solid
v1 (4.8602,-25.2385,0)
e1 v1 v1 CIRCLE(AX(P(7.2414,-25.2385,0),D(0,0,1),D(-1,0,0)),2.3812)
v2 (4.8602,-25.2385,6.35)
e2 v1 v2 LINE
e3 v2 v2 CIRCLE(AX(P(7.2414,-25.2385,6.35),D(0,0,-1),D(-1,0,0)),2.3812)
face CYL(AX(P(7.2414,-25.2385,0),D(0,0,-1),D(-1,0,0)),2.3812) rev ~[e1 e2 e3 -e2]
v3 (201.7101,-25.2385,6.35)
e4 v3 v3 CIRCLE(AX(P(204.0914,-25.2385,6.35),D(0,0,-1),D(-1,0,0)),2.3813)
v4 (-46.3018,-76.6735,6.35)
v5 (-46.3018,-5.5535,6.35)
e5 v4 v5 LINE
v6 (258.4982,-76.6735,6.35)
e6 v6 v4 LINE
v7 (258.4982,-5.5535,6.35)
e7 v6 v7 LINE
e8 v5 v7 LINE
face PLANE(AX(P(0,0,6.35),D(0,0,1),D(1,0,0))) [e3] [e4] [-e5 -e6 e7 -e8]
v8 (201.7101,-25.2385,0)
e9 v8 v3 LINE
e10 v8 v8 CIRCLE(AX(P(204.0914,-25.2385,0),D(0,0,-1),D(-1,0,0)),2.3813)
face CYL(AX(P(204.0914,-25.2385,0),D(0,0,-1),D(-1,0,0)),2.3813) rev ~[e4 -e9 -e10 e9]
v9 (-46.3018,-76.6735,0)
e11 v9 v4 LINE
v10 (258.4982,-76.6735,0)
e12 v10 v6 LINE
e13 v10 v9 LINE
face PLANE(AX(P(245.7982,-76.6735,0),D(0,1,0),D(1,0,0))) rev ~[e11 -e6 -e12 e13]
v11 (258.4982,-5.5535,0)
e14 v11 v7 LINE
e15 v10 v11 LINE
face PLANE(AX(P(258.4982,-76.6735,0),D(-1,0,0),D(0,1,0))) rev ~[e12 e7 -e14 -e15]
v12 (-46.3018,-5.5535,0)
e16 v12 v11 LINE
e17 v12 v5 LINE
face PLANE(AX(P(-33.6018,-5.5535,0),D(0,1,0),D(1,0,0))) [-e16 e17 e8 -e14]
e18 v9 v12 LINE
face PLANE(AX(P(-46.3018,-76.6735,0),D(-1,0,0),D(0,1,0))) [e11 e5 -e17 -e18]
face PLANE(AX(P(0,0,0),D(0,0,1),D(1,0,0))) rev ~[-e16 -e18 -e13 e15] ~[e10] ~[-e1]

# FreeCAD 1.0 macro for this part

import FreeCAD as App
import Part
import Sketcher
from FreeCAD import Vector
Q = App.Units.Quantity


def add_polygon(sketch, points):
    """Adds a closed chain of lines whose ends are joined by coincident constraints."""
    first, n = sketch.GeometryCount, len(points)
    for a, b in zip(points, points[1:] + points[:1]):
        sketch.addGeometry(Part.LineSegment(App.Vector(*a, 0), App.Vector(*b, 0)), False)
    for i in range(n):
        sketch.addConstraint(Sketcher.Constraint("Coincident", first + i, 2, first + (i + 1) % n, 1))

doc = App.newDocument("Part")
body = doc.addObject("PartDesign::Body", "Body")

sketch1 = doc.addObject("Sketcher::SketchObject", "Sketch")
body.addObject(sketch1)
sketch1.AttachmentSupport = (doc.XY_Plane, [""])
sketch1.MapMode = "FlatFace"
add_polygon(sketch1, [(252, 10), (-40, 10), (-40, -92), (252, -92)])
sketch1.addConstraint([
    Sketcher.Constraint("Horizontal", 0),
    Sketcher.Constraint("Vertical", 1),
    Sketcher.Constraint("Horizontal", 2),
    Sketcher.Constraint("Vertical", 3),
    Sketcher.Constraint("DistanceY", 1, 2, 1, 1, Q("4 in")),
    Sketcher.Constraint("DistanceX", 0, 2, 0, 1, Q("11.5 in")),
    Sketcher.Constraint("DistanceX", 0, 2, -1, 1, Q("1.5729 in")),
    Sketcher.Constraint("DistanceY", -1, 1, 0, 2, 9.6865),
])
pad1 = doc.addObject("PartDesign::Pad", "Pad")
body.addObject(pad1)
pad1.Profile = sketch1
pad1.Length = Q("0.25 in")

sketch2 = doc.addObject("Sketcher::SketchObject", "Sketch001")
body.addObject(sketch2)
sketch2.AttachmentSupport = (doc.XY_Plane, [""])
sketch2.MapMode = "FlatFace"
add_polygon(sketch2, [(-34, -92), (-40, -92), (-40, -77), (-34, -77)])
add_polygon(sketch2, [(246, 10), (252, 10), (252, -6), (246, -6)])
add_polygon(sketch2, [(252, -77), (252, -92), (246, -92), (246, -77)])
add_polygon(sketch2, [(-40, -6), (-40, 10), (-34, 10), (-34, -6)])
sketch2.addConstraint([
    Sketcher.Constraint("Horizontal", 0),
    Sketcher.Constraint("Vertical", 1),
    Sketcher.Constraint("Horizontal", 2),
    Sketcher.Constraint("Vertical", 3),
    Sketcher.Constraint("Horizontal", 4),
    Sketcher.Constraint("Vertical", 5),
    Sketcher.Constraint("Horizontal", 6),
    Sketcher.Constraint("Vertical", 7),
    Sketcher.Constraint("Vertical", 8),
    Sketcher.Constraint("Horizontal", 9),
    Sketcher.Constraint("Vertical", 10),
    Sketcher.Constraint("Horizontal", 11),
    Sketcher.Constraint("Vertical", 12),
    Sketcher.Constraint("Horizontal", 13),
    Sketcher.Constraint("Vertical", 14),
    Sketcher.Constraint("Horizontal", 15),
    Sketcher.Constraint("Horizontal", 3, 2, 8, 2),
    Sketcher.Constraint("Horizontal", 2, 2, 10, 2),
    Sketcher.Constraint("Horizontal", 7, 2, 12, 2),
    Sketcher.Constraint("Horizontal", 6, 2, 14, 2),
    Sketcher.Constraint("Vertical", 5, 2, 8, 2),
    Sketcher.Constraint("Vertical", 7, 2, 9, 2),
    Sketcher.Constraint("Vertical", 1, 2, 12, 2),
    Sketcher.Constraint("Vertical", 3, 2, 13, 2),
    Sketcher.Constraint("Equal", 2, 4),
    Sketcher.Constraint("Equal", 3, 5),
    Sketcher.Constraint("DistanceY", 1, 1, 1, 2, Q("0.6 in")),
    Sketcher.Constraint("DistanceX", 0, 2, 0, 1, Q("0.25 in")),
    Sketcher.Constraint("DistanceY", 3, 2, 4, 2, Q("4 in")),
    Sketcher.Constraint("DistanceX", 2, 2, 6, 2, Q("11 in")),
    Sketcher.Constraint("DistanceX", 0, 2, -1, 1, Q("1.5729 in")),
    Sketcher.Constraint("DistanceY", 0, 2, -1, 1, 91.9135),
])
pocket1 = doc.addObject("PartDesign::Pocket", "Pocket")
body.addObject(pocket1)
pocket1.Profile = sketch2
pocket1.Length = Q("1 in")
pocket1.Reversed = True

sketch3 = doc.addObject("Sketcher::SketchObject", "Sketch002")
body.addObject(sketch3)
sketch3.AttachmentSupport = (doc.XY_Plane, [""])
sketch3.MapMode = "FlatFace"
add_polygon(sketch3, [(258, -77), (252, -77), (252, -6), (258, -6)])
add_polygon(sketch3, [(-40, -6), (-40, -77), (-46, -77), (-46, -6)])
sketch3.addConstraint([
    Sketcher.Constraint("Horizontal", 0),
    Sketcher.Constraint("Vertical", 1),
    Sketcher.Constraint("Horizontal", 2),
    Sketcher.Constraint("Vertical", 3),
    Sketcher.Constraint("Vertical", 4),
    Sketcher.Constraint("Horizontal", 5),
    Sketcher.Constraint("Vertical", 6),
    Sketcher.Constraint("Horizontal", 7),
    Sketcher.Constraint("Horizontal", 3, 2, 4, 2),
    Sketcher.Constraint("Horizontal", 2, 2, 6, 2),
    Sketcher.Constraint("Equal", 2, 5),
    Sketcher.Constraint("DistanceX", 0, 2, 0, 1, Q("0.25 in")),
    Sketcher.Constraint("DistanceY", 1, 1, 1, 2, Q("2.8 in")),
    Sketcher.Constraint("DistanceX", 5, 2, 3, 2, Q("12 in")),
    Sketcher.Constraint("DistanceX", -1, 1, 0, 2, Q("9.9271 in")),
    Sketcher.Constraint("DistanceY", 0, 2, -1, 1, 76.6735),
])
pad2 = doc.addObject("PartDesign::Pad", "Pad001")
body.addObject(pad2)
pad2.Profile = sketch3
pad2.Length = Q("0.25 in")

sketch4 = doc.addObject("Sketcher::SketchObject", "Sketch003")
body.addObject(sketch4)
sketch4.AttachmentSupport = (doc.XY_Plane, [""])
sketch4.MapMode = "FlatFace"
sketch4.addGeometry([
    Part.Circle(Vector(204.1, -25.2, 0), Vector(0, 0, 1), 2.4),
    Part.Circle(Vector(7.2, -25.2, 0), Vector(0, 0, 1), 2.4),
], False)
sketch4.addConstraint([
    Sketcher.Constraint("Equal", 0, 1),
    Sketcher.Constraint("Horizontal", 0, 3, 1, 3),
    Sketcher.Constraint("Diameter", 0, Q("0.1875 in")),
    Sketcher.Constraint("DistanceX", 1, 3, 0, 3, Q("7.75 in")),
    Sketcher.Constraint("DistanceX", -1, 1, 0, 3, Q("8.0351 in")),
    Sketcher.Constraint("DistanceY", 0, 3, -1, 1, 25.2385),
])
pocket2 = doc.addObject("PartDesign::Pocket", "Pocket001")
body.addObject(pocket2)
pocket2.Profile = sketch4
pocket2.Length = Q("0.25 in")
pocket2.Reversed = True

sketch5 = doc.addObject("Sketcher::SketchObject", "Sketch004")
body.addObject(sketch5)
sketch5.AttachmentSupport = (doc.XY_Plane, [""])
sketch5.MapMode = "FlatFace"
add_polygon(sketch5, [(-34, -77), (246, -77), (246, -92), (-34, -92)])
add_polygon(sketch5, [(246, -6), (-34, -6), (-34, 10), (246, 10)])
sketch5.addConstraint([
    Sketcher.Constraint("Horizontal", 0),
    Sketcher.Constraint("Vertical", 1),
    Sketcher.Constraint("Horizontal", 2),
    Sketcher.Constraint("Vertical", 3),
    Sketcher.Constraint("Horizontal", 4),
    Sketcher.Constraint("Vertical", 5),
    Sketcher.Constraint("Horizontal", 6),
    Sketcher.Constraint("Vertical", 7),
    Sketcher.Constraint("Vertical", 3, 2, 4, 2),
    Sketcher.Constraint("Vertical", 1, 2, 6, 2),
    Sketcher.Constraint("Equal", 3, 5),
    Sketcher.Constraint("DistanceX", 0, 1, 0, 2, Q("11 in")),
    Sketcher.Constraint("DistanceY", 1, 2, 1, 1, Q("0.6 in")),
    Sketcher.Constraint("DistanceY", 2, 2, 5, 2, Q("4 in")),
    Sketcher.Constraint("DistanceX", -1, 1, 0, 2, Q("9.6771 in")),
    Sketcher.Constraint("DistanceY", 0, 2, -1, 1, 76.6735),
])
pocket3 = doc.addObject("PartDesign::Pocket", "Pocket002")
body.addObject(pocket3)
pocket3.Profile = sketch5
pocket3.Length = Q("0.25 in")
pocket3.Reversed = True

doc.recompute()
